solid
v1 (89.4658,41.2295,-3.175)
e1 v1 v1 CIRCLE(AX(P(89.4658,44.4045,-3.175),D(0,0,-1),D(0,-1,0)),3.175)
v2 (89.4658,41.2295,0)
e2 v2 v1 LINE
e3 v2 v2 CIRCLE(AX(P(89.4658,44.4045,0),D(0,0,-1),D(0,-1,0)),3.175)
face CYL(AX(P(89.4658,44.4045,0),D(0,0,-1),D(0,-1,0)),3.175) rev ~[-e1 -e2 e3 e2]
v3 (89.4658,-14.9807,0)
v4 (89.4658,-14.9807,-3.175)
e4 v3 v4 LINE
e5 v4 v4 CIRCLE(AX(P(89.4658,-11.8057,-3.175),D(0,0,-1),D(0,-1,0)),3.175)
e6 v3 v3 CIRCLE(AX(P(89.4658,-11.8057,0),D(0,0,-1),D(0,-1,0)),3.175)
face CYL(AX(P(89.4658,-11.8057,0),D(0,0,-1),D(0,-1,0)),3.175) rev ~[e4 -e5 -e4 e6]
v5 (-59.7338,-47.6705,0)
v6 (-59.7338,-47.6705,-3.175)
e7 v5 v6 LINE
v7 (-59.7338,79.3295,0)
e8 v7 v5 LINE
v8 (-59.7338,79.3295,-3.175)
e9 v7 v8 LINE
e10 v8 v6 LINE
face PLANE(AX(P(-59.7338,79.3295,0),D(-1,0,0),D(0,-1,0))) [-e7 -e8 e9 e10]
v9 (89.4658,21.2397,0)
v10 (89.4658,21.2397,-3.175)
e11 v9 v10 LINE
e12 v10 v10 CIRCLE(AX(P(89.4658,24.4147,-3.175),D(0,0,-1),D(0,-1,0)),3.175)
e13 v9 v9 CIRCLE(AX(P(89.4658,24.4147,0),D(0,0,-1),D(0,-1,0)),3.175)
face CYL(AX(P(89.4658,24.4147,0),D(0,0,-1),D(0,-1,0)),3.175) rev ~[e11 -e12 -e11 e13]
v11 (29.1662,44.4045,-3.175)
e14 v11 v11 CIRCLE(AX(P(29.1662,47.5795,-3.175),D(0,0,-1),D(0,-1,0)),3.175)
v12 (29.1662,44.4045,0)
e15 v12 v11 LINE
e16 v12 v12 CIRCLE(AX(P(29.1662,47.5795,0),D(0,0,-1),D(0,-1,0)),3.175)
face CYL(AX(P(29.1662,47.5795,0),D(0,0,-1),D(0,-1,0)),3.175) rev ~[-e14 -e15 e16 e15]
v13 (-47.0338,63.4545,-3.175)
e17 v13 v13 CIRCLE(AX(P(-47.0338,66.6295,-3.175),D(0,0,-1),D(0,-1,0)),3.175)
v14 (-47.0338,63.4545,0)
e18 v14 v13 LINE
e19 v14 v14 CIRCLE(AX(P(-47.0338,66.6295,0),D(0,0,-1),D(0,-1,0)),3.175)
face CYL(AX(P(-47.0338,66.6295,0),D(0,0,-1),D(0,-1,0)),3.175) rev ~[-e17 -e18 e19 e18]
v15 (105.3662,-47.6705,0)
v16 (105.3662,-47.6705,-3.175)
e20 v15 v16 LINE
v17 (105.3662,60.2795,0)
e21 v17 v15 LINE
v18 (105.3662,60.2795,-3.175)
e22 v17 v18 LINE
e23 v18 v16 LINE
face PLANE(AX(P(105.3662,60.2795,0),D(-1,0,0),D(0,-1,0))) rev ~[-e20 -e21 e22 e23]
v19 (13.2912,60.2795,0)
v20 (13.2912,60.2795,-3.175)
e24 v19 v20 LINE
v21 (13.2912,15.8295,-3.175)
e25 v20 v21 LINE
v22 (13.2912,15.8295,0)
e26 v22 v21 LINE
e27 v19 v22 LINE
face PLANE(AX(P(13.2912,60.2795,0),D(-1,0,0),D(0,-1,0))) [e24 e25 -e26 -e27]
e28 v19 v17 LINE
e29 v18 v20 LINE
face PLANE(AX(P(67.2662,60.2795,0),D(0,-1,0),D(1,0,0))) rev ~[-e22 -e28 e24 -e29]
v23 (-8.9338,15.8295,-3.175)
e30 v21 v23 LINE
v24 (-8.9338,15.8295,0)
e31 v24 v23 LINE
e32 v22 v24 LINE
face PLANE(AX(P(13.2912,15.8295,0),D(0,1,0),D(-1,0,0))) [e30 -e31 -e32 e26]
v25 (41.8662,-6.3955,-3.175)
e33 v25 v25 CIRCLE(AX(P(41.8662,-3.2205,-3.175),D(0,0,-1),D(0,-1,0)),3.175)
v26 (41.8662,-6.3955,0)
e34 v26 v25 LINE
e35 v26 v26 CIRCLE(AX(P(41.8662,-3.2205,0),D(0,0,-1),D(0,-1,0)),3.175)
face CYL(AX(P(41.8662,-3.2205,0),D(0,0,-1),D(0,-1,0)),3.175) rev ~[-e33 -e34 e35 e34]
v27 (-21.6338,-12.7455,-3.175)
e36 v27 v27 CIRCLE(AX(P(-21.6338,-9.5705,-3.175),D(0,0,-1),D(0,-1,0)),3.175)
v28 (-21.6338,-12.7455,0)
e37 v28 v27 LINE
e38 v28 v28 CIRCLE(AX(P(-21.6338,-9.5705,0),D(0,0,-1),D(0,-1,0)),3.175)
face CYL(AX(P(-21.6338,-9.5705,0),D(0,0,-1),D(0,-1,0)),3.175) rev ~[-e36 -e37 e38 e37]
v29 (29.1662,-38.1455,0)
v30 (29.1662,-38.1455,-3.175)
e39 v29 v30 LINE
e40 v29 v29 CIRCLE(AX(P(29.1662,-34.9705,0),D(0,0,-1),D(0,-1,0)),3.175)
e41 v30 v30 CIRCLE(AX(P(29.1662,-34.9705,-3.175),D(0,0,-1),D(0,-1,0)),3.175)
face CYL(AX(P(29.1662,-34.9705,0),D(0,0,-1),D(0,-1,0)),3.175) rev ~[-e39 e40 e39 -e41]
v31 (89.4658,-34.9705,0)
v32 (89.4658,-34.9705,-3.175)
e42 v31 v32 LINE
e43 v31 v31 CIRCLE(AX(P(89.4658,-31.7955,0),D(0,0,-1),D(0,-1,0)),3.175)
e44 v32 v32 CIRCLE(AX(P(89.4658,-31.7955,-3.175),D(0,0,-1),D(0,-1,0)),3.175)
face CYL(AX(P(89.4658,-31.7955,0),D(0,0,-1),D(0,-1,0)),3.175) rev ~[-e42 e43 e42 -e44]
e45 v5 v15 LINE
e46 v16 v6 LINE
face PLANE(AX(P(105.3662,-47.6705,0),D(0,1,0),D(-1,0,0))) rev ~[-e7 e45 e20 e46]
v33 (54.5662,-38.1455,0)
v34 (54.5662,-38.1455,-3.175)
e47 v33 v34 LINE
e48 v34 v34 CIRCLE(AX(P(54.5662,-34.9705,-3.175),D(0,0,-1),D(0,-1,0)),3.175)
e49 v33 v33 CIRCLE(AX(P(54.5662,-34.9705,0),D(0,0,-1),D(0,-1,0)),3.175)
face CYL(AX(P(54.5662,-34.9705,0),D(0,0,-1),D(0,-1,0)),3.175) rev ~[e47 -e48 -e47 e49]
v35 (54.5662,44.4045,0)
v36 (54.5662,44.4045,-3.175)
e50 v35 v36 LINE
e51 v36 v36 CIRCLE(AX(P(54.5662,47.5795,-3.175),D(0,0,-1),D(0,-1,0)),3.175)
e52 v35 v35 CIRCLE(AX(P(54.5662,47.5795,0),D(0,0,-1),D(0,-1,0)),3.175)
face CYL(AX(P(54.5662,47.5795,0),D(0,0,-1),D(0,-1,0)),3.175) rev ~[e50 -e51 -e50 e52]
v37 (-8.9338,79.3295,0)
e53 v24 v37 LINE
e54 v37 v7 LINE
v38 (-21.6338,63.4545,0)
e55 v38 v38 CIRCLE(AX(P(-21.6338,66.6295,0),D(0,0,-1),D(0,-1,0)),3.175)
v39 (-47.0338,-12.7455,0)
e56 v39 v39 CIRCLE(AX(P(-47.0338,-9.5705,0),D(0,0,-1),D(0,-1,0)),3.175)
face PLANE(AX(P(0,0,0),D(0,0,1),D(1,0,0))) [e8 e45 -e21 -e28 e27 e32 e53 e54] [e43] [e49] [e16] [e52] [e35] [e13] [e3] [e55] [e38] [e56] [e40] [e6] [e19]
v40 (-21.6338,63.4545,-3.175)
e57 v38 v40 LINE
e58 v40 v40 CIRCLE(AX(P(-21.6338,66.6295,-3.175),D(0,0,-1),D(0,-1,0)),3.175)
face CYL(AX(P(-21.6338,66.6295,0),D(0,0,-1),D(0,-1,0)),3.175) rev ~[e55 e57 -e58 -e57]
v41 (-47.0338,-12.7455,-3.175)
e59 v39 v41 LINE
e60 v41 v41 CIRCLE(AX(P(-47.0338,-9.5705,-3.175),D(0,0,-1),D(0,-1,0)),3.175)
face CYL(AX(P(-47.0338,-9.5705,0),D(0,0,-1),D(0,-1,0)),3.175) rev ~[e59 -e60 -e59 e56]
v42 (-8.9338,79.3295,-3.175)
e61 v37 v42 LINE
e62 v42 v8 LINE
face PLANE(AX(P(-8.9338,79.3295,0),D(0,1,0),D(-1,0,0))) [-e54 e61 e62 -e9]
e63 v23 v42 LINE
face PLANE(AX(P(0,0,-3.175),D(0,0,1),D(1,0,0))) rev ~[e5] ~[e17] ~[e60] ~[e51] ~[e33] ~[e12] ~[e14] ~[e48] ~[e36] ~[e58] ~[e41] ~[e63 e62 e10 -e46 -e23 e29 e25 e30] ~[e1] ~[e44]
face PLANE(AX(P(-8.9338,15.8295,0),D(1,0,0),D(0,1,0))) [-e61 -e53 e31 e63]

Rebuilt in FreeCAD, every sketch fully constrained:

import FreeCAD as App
import Part
import Sketcher

V = App.Vector
Q = App.Units.Quantity


def add_polygon(sketch, points):
    """Adds a closed chain of lines whose ends are joined by coincident constraints."""
    first, n = sketch.GeometryCount, len(points)
    for a, b in zip(points, points[1:] + points[:1]):
        sketch.addGeometry(Part.LineSegment(App.Vector(*a, 0), App.Vector(*b, 0)), False)
    for i in range(n):
        sketch.addConstraint(Sketcher.Constraint("Coincident", first + i, 2, first + (i + 1) % n, 1))

doc = App.newDocument("Part")
params = doc.addObject("Spreadsheet::Sheet", "Params")
for row, (alias, value) in enumerate([
    ("sketch1_width", "2 in"),
    ("sketch1_width2", "5 in"),
    ("sketch1_height", "2.5 in"),
    ("sketch1_height2", "4.25 in"),
    ("sketch1_width3", "2.125 in"),
    ("pad1_length", "0.125 in"),
    ("sketch2_diameter", "0.25 in"),
    ("hole_diameter", "0.25 in"),
    ("hole_depth", "1 in"),
    ("sketch3_width", "1.5 in"),
    ("sketch3_height", "4.25 in"),
    ("pad2_length", "0.125 in"),
    ("sketch4_diameter", "0.25 in"),
    ("hole2_diameter", "0.25 in"),
    ("hole2_depth", "1 in"),
], start=1):
    params.set(f"A{row}", alias)
    params.set(f"B{row}", "=" + value)
    params.setAlias(f"B{row}", alias)

body = doc.addObject("PartDesign::Body", "Body")

sketch1 = body.newObject("Sketcher::SketchObject", "Sketch")
sketch1.AttachmentSupport = (doc.getObject("XY_Plane"), [""])
sketch1.MapMode = "FlatFace"
add_polygon(sketch1, [(-9, 79), (-60, 79), (-60, -48), (67, -48), (67, 60), (13, 60), (13, 16), (-9, 16)])
sketch1.addConstraint(Sketcher.Constraint("Horizontal", 0))
sketch1.addConstraint(Sketcher.Constraint("Vertical", 1))
sketch1.addConstraint(Sketcher.Constraint("Horizontal", 2))
sketch1.addConstraint(Sketcher.Constraint("Vertical", 3))
sketch1.addConstraint(Sketcher.Constraint("Horizontal", 4))
sketch1.addConstraint(Sketcher.Constraint("Vertical", 5))
sketch1.addConstraint(Sketcher.Constraint("Horizontal", 6))
sketch1.addConstraint(Sketcher.Constraint("Vertical", 7))
sketch1.addConstraint(Sketcher.Constraint("Equal", 2, 1))
sketch1.addConstraint(Sketcher.Constraint("DistanceX", 0, 2, 0, 1, Q("2 in")))
sketch1.addConstraint(Sketcher.Constraint("DistanceX", 2, 1, 2, 2, Q("5 in")))
sketch1.addConstraint(Sketcher.Constraint("DistanceY", 7, 1, 7, 2, Q("2.5 in")))
sketch1.addConstraint(Sketcher.Constraint("DistanceY", 3, 1, 3, 2, Q("4.25 in")))
sketch1.addConstraint(Sketcher.Constraint("DistanceX", 4, 2, 4, 1, Q("2.125 in")))
sketch1.addConstraint(Sketcher.Constraint("DistanceY", -1, 1, 0, 2, Q("3.1232 in")))
sketch1.addConstraint(Sketcher.Constraint("DistanceX", 0, 2, -1, 1, Q("59.7338 mm")))
sketch1.setExpression("Constraints[17]", "Params.sketch1_width")
sketch1.setExpression("Constraints[18]", "Params.sketch1_width2")
sketch1.setExpression("Constraints[19]", "Params.sketch1_height")
sketch1.setExpression("Constraints[20]", "Params.sketch1_height2")
sketch1.setExpression("Constraints[21]", "Params.sketch1_width3")
pad1 = body.newObject("PartDesign::Pad", "Pad")
pad1.Profile = sketch1
pad1.setExpression("Length", "Params.pad1_length")
pad1.Reversed = True

sketch2 = body.newObject("Sketcher::SketchObject", "Sketch001")
sketch2.AttachmentSupport = (doc.getObject("XY_Plane"), [""])
sketch2.MapMode = "FlatFace"
sketch2.addGeometry(Part.Circle(V(-47, 66.6, 0), V(0, 0, 1), 3.2), False)
sketch2.addGeometry(Part.Circle(V(54.6, 47.6, 0), V(0, 0, 1), 3.2), False)
sketch2.addGeometry(Part.Circle(V(41.9, -3.2, 0), V(0, 0, 1), 3.2), False)
sketch2.addGeometry(Part.Circle(V(-47, -9.6, 0), V(0, 0, 1), 3.2), False)
sketch2.addGeometry(Part.Circle(V(54.6, -35, 0), V(0, 0, 1), 3.2), False)
sketch2.addGeometry(Part.Circle(V(89.5, -31.8, 0), V(0, 0, 1), 3.2), False)
sketch2.addGeometry(Part.Circle(V(89.5, -11.8, 0), V(0, 0, 1), 3.2), False)
sketch2.addGeometry(Part.Circle(V(-21.6, 66.6, 0), V(0, 0, 1), 3.2), False)
sketch2.addGeometry(Part.Circle(V(-21.6, -9.6, 0), V(0, 0, 1), 3.2), False)
sketch2.addGeometry(Part.Circle(V(29.2, 47.6, 0), V(0, 0, 1), 3.2), False)
sketch2.addGeometry(Part.Circle(V(29.2, -35, 0), V(0, 0, 1), 3.2), False)
sketch2.addConstraint(Sketcher.Constraint("Equal", 0, 1))
sketch2.addConstraint(Sketcher.Constraint("Equal", 1, 2))
sketch2.addConstraint(Sketcher.Constraint("Equal", 2, 3))
sketch2.addConstraint(Sketcher.Constraint("Equal", 3, 4))
sketch2.addConstraint(Sketcher.Constraint("Equal", 4, 5))
sketch2.addConstraint(Sketcher.Constraint("Equal", 5, 6))
sketch2.addConstraint(Sketcher.Constraint("Equal", 6, 7))
sketch2.addConstraint(Sketcher.Constraint("Equal", 7, 8))
sketch2.addConstraint(Sketcher.Constraint("Equal", 8, 9))
sketch2.addConstraint(Sketcher.Constraint("Equal", 9, 10))
sketch2.addConstraint(Sketcher.Constraint("Horizontal", 0, 3, 7, 3))
sketch2.addConstraint(Sketcher.Constraint("Horizontal", 3, 3, 8, 3))
sketch2.addConstraint(Sketcher.Constraint("Horizontal", 1, 3, 9, 3))
sketch2.addConstraint(Sketcher.Constraint("Horizontal", 4, 3, 10, 3))
sketch2.addConstraint(Sketcher.Constraint("Vertical", 0, 3, 3, 3))
sketch2.addConstraint(Sketcher.Constraint("Vertical", 1, 3, 4, 3))
sketch2.addConstraint(Sketcher.Constraint("Vertical", 5, 3, 6, 3))
sketch2.addConstraint(Sketcher.Constraint("Vertical", 7, 3, 8, 3))
sketch2.addConstraint(Sketcher.Constraint("Vertical", 9, 3, 10, 3))
sketch2.addConstraint(Sketcher.Constraint("Diameter", 0, Q("0.25 in")))
sketch2.addConstraint(Sketcher.Constraint("DistanceX", 0, 3, 1, 3, Q("4 in")))
sketch2.addConstraint(Sketcher.Constraint("DistanceY", 2, 3, 1, 3, Q("2 in")))
sketch2.addConstraint(Sketcher.Constraint("DistanceY", 3, 3, 0, 3, Q("3 in")))
sketch2.addConstraint(Sketcher.Constraint("DistanceY", 4, 3, 3, 3, Q("1 in")))
sketch2.addConstraint(Sketcher.Constraint("DistanceX", 0, 3, 7, 3, Q("1 in")))
sketch2.addConstraint(Sketcher.Constraint("DistanceX", 9, 3, 1, 3, Q("1 in")))
sketch2.addConstraint(Sketcher.Constraint("DistanceX", 2, 3, 1, 3, Q("0.5 in")))
sketch2.addConstraint(Sketcher.Constraint("DistanceY", 1, 3, 0, 3, Q("0.75 in")))
sketch2.addConstraint(Sketcher.Constraint("DistanceX", 4, 3, 5, 3, Q("1.374 in")))
sketch2.addConstraint(Sketcher.Constraint("DistanceY", 4, 3, 5, 3, Q("0.125 in")))
sketch2.addConstraint(Sketcher.Constraint("DistanceY", 5, 3, 6, 3, Q("0.787 in")))
sketch2.addConstraint(Sketcher.Constraint("DistanceY", -1, 1, 0, 3, Q("2.6232 in")))
sketch2.addConstraint(Sketcher.Constraint("DistanceX", 0, 3, -1, 1, Q("47.0338 mm")))
sketch2.setExpression("Constraints[19]", "Params.sketch2_diameter")
doc.recompute()
hole = body.newObject("PartDesign::Hole", "Hole")
hole.Profile = sketch2
hole.ThreadType = "None"
hole.setExpression("Diameter", "Params.hole_diameter")
hole.DepthType = "Dimension"
hole.setExpression("Depth", "Params.hole_depth")
hole.DrillPoint = "Angled"
hole.DrillPointAngle = 118

sketch3 = body.newObject("Sketcher::SketchObject", "Sketch002")
sketch3.AttachmentSupport = (doc.getObject("XY_Plane"), [""])
sketch3.MapMode = "FlatFace"
add_polygon(sketch3, [(67, 60), (67, -48), (105, -48), (105, 60)])
sketch3.addConstraint(Sketcher.Constraint("Vertical", 0))
sketch3.addConstraint(Sketcher.Constraint("Horizontal", 1))
sketch3.addConstraint(Sketcher.Constraint("Vertical", 2))
sketch3.addConstraint(Sketcher.Constraint("Horizontal", 3))
sketch3.addConstraint(Sketcher.Constraint("DistanceX", 1, 1, 1, 2, Q("1.5 in")))
sketch3.addConstraint(Sketcher.Constraint("DistanceY", 0, 2, 0, 1, Q("4.25 in")))
sketch3.addConstraint(Sketcher.Constraint("DistanceY", 0, 2, -1, 1, Q("1.8768 in")))
sketch3.addConstraint(Sketcher.Constraint("DistanceX", -1, 1, 0, 2, Q("67.2662 mm")))
sketch3.setExpression("Constraints[8]", "Params.sketch3_width")
sketch3.setExpression("Constraints[9]", "Params.sketch3_height")
pad2 = body.newObject("PartDesign::Pad", "Pad001")
pad2.Profile = sketch3
pad2.setExpression("Length", "Params.pad2_length")
pad2.Reversed = True

sketch4 = body.newObject("Sketcher::SketchObject", "Sketch003")
sketch4.AttachmentSupport = (doc.getObject("XY_Plane"), [""])
sketch4.MapMode = "FlatFace"
sketch4.addGeometry(Part.Circle(V(89.5, -11.8, 0), V(0, 0, 1), 3.2), False)
sketch4.addGeometry(Part.Circle(V(89.5, -31.8, 0), V(0, 0, 1), 3.2), False)
sketch4.addGeometry(Part.Circle(V(89.5, 24.4, 0), V(0, 0, 1), 3.2), False)
sketch4.addGeometry(Part.Circle(V(89.5, 44.4, 0), V(0, 0, 1), 3.2), False)
sketch4.addConstraint(Sketcher.Constraint("Equal", 0, 1))
sketch4.addConstraint(Sketcher.Constraint("Equal", 1, 2))
sketch4.addConstraint(Sketcher.Constraint("Equal", 2, 3))
sketch4.addConstraint(Sketcher.Constraint("Vertical", 0, 3, 1, 3))
sketch4.addConstraint(Sketcher.Constraint("Vertical", 1, 3, 2, 3))
sketch4.addConstraint(Sketcher.Constraint("Vertical", 2, 3, 3, 3))
sketch4.addConstraint(Sketcher.Constraint("Diameter", 0, Q("0.25 in")))
sketch4.addConstraint(Sketcher.Constraint("DistanceY", 1, 3, 3, 3, Q("3 in")))
sketch4.addConstraint(Sketcher.Constraint("DistanceY", 1, 3, 0, 3, Q("0.787 in")))
sketch4.addConstraint(Sketcher.Constraint("DistanceY", 0, 3, 2, 3, Q("1.426 in")))
sketch4.addConstraint(Sketcher.Constraint("DistanceY", 0, 3, -1, 1, Q("0.4648 in")))
sketch4.addConstraint(Sketcher.Constraint("DistanceX", -1, 1, 0, 3, Q("89.4658 mm")))
sketch4.setExpression("Constraints[6]", "Params.sketch4_diameter")
doc.recompute()
hole2 = body.newObject("PartDesign::Hole", "Hole001")
hole2.Profile = sketch4
hole2.ThreadType = "None"
hole2.setExpression("Diameter", "Params.hole2_diameter")
hole2.DepthType = "Dimension"
hole2.setExpression("Depth", "Params.hole2_depth")
hole2.DrillPoint = "Angled"
hole2.DrillPointAngle = 118

doc.recompute()
